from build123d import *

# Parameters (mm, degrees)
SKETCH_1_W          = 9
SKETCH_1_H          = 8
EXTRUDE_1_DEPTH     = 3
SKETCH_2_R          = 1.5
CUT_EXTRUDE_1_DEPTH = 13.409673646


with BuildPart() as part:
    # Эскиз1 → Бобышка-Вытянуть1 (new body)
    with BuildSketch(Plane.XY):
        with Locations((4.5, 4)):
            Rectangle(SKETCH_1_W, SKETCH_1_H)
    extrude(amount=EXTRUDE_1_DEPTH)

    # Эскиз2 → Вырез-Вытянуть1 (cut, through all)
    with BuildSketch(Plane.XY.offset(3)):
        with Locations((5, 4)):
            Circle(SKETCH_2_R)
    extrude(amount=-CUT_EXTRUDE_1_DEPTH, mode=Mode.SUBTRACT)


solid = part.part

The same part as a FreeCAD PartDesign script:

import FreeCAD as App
import Part
import Sketcher
Q = App.Units.Quantity


def add_polygon(sketch, points):
    """Adds a closed chain of lines whose ends are joined by coincident constraints."""
    first, n = sketch.GeometryCount, len(points)
    for a, b in zip(points, points[1:] + points[:1]):
        sketch.addGeometry(Part.LineSegment(App.Vector(*a, 0), App.Vector(*b, 0)), False)
    for i in range(n):
        sketch.addConstraint(Sketcher.Constraint("Coincident", first + i, 2, first + (i + 1) % n, 1))

doc = App.newDocument("Part")
body = doc.addObject("PartDesign::Body", "Body")

sketch1 = body.newObject("Sketcher::SketchObject", "Sketch")
sketch1.AttachmentSupport = (doc.getObject("XY_Plane"), [""])
sketch1.MapMode = "FlatFace"
add_polygon(sketch1, [(0, 8), (0, 0), (9, 0), (9, 8)])
sketch1.addConstraint([
    Sketcher.Constraint("Vertical", 0),
    Sketcher.Constraint("Horizontal", 1),
    Sketcher.Constraint("Vertical", 2),
    Sketcher.Constraint("Horizontal", 3),
    Sketcher.Constraint("Coincident", 0, 2, -1, 1),
    Sketcher.Constraint("DistanceX", 1, 1, 1, 2, Q("9 mm")),
    Sketcher.Constraint("DistanceY", 0, 2, 0, 1, Q("8 mm")),
])
pad1 = body.newObject("PartDesign::Pad", "Pad")
pad1.Profile = sketch1
pad1.Length = 3

sketch2 = body.newObject("Sketcher::SketchObject", "Sketch001")
sketch2.AttachmentSupport = (doc.getObject("XY_Plane"), [""])
sketch2.MapMode = "FlatFace"
sketch2.AttachmentOffset = App.Placement(App.Vector(0, 0, 3), App.Rotation())
sketch2.addGeometry(Part.Circle(App.Vector(5, 4, 0), App.Vector(0, 0, 1), 1.5), False)
sketch2.addConstraint([
    Sketcher.Constraint("Diameter", 0, Q("3 mm")),
    Sketcher.Constraint("DistanceX", -1, 1, 0, 3, Q("5 mm")),
    Sketcher.Constraint("DistanceY", -1, 1, 0, 3, Q("4 mm")),
])
pocket1 = body.newObject("PartDesign::Pocket", "Pocket")
pocket1.Profile = sketch2
pocket1.Type = "ThroughAll"

doc.recompute()
